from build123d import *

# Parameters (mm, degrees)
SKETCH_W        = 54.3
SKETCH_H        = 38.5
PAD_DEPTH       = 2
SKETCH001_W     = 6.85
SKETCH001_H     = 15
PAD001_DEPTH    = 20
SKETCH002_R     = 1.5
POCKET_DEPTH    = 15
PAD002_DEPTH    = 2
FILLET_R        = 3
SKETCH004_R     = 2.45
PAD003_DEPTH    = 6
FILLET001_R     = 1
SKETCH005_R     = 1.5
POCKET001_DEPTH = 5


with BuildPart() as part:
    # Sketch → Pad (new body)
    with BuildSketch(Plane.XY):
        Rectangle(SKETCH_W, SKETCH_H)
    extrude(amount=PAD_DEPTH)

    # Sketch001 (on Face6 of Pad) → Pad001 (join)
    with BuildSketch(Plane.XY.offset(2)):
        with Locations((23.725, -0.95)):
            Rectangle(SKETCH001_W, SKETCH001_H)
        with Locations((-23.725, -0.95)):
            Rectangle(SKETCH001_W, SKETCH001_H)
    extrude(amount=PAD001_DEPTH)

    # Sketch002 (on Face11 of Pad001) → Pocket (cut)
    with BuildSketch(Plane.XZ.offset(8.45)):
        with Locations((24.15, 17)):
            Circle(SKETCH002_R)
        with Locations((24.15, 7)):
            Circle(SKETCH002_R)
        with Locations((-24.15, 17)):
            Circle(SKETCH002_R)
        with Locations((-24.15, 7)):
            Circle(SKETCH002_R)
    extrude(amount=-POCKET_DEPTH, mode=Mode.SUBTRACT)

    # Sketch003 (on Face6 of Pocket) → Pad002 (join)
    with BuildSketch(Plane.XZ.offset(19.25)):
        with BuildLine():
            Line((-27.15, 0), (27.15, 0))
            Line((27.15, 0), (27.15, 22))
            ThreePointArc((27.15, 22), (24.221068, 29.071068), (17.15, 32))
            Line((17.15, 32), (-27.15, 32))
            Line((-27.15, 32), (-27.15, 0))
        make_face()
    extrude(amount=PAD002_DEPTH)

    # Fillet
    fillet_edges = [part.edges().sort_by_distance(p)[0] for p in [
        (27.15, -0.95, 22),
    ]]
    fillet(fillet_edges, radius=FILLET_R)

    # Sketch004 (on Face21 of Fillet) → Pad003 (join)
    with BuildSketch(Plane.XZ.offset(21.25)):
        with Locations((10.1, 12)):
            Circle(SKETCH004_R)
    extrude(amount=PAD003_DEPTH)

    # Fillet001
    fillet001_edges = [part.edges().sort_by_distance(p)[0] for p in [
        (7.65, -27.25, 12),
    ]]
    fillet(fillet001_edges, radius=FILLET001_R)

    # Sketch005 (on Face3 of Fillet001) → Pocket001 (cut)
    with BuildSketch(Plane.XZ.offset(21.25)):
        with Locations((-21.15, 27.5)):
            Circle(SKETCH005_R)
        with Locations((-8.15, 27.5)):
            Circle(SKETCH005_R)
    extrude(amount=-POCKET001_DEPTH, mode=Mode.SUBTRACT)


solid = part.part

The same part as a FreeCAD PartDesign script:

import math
import FreeCAD as App
import Part
import Sketcher


def edges_at(feature, points):
    """Names of the edges that pass closest to the given points."""
    edges = feature.Shape.Edges
    near = lambda p: min(range(len(edges)), key=lambda i: edges[i].distToShape(Part.Vertex(*p))[0])
    return sorted({f"Edge{near(p) + 1}" for p in points})


def add_polygon(sketch, points):
    """Adds a closed chain of lines whose ends are joined by coincident constraints."""
    first, n = sketch.GeometryCount, len(points)
    for a, b in zip(points, points[1:] + points[:1]):
        sketch.addGeometry(Part.LineSegment(App.Vector(*a, 0), App.Vector(*b, 0)), False)
    for i in range(n):
        sketch.addConstraint(Sketcher.Constraint("Coincident", first + i, 2, first + (i + 1) % n, 1))

doc = App.newDocument("Part")
body = doc.addObject("PartDesign::Body", "Body")

sketch1 = body.newObject("Sketcher::SketchObject", "Sketch")
sketch1.AttachmentSupport = (doc.getObject("XY_Plane"), [""])
sketch1.MapMode = "FlatFace"
add_polygon(sketch1, [(-27, 19), (-27, -19), (27, -19), (27, 19)])
sketch1.addConstraint([
    Sketcher.Constraint("Vertical", 0),
    Sketcher.Constraint("Horizontal", 1),
    Sketcher.Constraint("Vertical", 2),
    Sketcher.Constraint("Horizontal", 3),
    Sketcher.Constraint("Symmetric", 0, 2, 2, 2, -1, 1),
    Sketcher.Constraint("DistanceX", 1, 1, 1, 2, 54.3),
    Sketcher.Constraint("DistanceY", 0, 2, 0, 1, 38.5),
])
pad1 = body.newObject("PartDesign::Pad", "Pad")
pad1.Profile = sketch1
pad1.Length = 2

sketch2 = body.newObject("Sketcher::SketchObject", "Sketch001")
sketch2.AttachmentSupport = (doc.getObject("XY_Plane"), [""])
sketch2.MapMode = "FlatFace"
sketch2.AttachmentOffset = App.Placement(App.Vector(0, 0, 2), App.Rotation())
add_polygon(sketch2, [(20, 7), (20, -8), (27, -8), (27, 7)])
add_polygon(sketch2, [(-27, 7), (-27, -8), (-20, -8), (-20, 7)])
sketch2.addConstraint([
    Sketcher.Constraint("Vertical", 0),
    Sketcher.Constraint("Horizontal", 1),
    Sketcher.Constraint("Vertical", 2),
    Sketcher.Constraint("Horizontal", 3),
    Sketcher.Constraint("Vertical", 4),
    Sketcher.Constraint("Horizontal", 5),
    Sketcher.Constraint("Vertical", 6),
    Sketcher.Constraint("Horizontal", 7),
    Sketcher.Constraint("Symmetric", 1, 2, 4, 2, -2),
    Sketcher.Constraint("Symmetric", 3, 2, 6, 2, -2),
    Sketcher.Constraint("DistanceY", 0, 2, 0, 1, 15.0),
    Sketcher.Constraint("DistanceX", 1, 1, 1, 2, 6.85),
    Sketcher.Constraint("DistanceX", -1, 1, 0, 2, 20.3),
    Sketcher.Constraint("DistanceY", 0, 2, -1, 1, 8.45),
])
pad2 = body.newObject("PartDesign::Pad", "Pad001")
pad2.Profile = sketch2
pad2.Length = 20

sketch3 = body.newObject("Sketcher::SketchObject", "Sketch002")
sketch3.AttachmentSupport = (doc.getObject("XZ_Plane"), [""])
sketch3.MapMode = "FlatFace"
sketch3.AttachmentOffset = App.Placement(App.Vector(0, 0, 8.45), App.Rotation())
sketch3.addGeometry([
    Part.Circle(App.Vector(24.1, 17, 0), App.Vector(0, 0, 1), 1.5),
    Part.Circle(App.Vector(24.1, 7, 0), App.Vector(0, 0, 1), 1.5),
    Part.Circle(App.Vector(-24.1, 17, 0), App.Vector(0, 0, 1), 1.5),
    Part.Circle(App.Vector(-24.1, 7, 0), App.Vector(0, 0, 1), 1.5),
], False)
sketch3.addConstraint([
    Sketcher.Constraint("Equal", 0, 1),
    Sketcher.Constraint("Equal", 1, 2),
    Sketcher.Constraint("Equal", 2, 3),
    Sketcher.Constraint("Symmetric", 0, 3, 2, 3, -2),
    Sketcher.Constraint("Symmetric", 1, 3, 3, 3, -2),
    Sketcher.Constraint("Vertical", 0, 3, 1, 3),
    Sketcher.Constraint("Diameter", 0, 3.0),
    Sketcher.Constraint("DistanceY", -1, 1, 0, 3, 17.0),
    Sketcher.Constraint("DistanceY", -1, 1, 1, 3, 7.0),
    Sketcher.Constraint("DistanceX", 2, 3, 0, 3, 48.3),
])
pocket1 = body.newObject("PartDesign::Pocket", "Pocket")
pocket1.Profile = sketch3
pocket1.Length = 15

sketch4 = body.newObject("Sketcher::SketchObject", "Sketch003")
sketch4.AttachmentSupport = (doc.getObject("XZ_Plane"), [""])
sketch4.MapMode = "FlatFace"
sketch4.AttachmentOffset = App.Placement(App.Vector(0, 0, 19.25), App.Rotation())
sketch4.addGeometry([
    Part.LineSegment(App.Vector(-27, 0, 0), App.Vector(27, 0, 0)),
    Part.LineSegment(App.Vector(27, 0, 0), App.Vector(27, 22, 0)),
    Part.ArcOfCircle(Part.Circle(App.Vector(17, 22, 0), App.Vector(0, 0, 1), 10), math.radians(0), math.radians(90)),
    Part.LineSegment(App.Vector(17, 32, 0), App.Vector(-27, 32, 0)),
    Part.LineSegment(App.Vector(-27, 32, 0), App.Vector(-27, 0, 0)),
], False)
sketch4.addConstraint([
    Sketcher.Constraint("Coincident", 0, 2, 1, 1),
    Sketcher.Constraint("Tangent", 1, 2, 2, 1),
    Sketcher.Constraint("Tangent", 2, 2, 3, 1),
    Sketcher.Constraint("Coincident", 3, 2, 4, 1),
    Sketcher.Constraint("Coincident", 4, 2, 0, 1),
    Sketcher.Constraint("Horizontal", 0),
    Sketcher.Constraint("Vertical", 1),
    Sketcher.Constraint("Horizontal", 3),
    Sketcher.Constraint("Vertical", 4),
    Sketcher.Constraint("Symmetric", 0, 2, 4, 2, -1, 1),
    Sketcher.Constraint("Radius", 2, 9.999999),
    Sketcher.Constraint("DistanceY", 1, 1, 1, 2, 22.0),
    Sketcher.Constraint("DistanceX", 0, 1, 0, 2, 54.3),
])
pad3 = body.newObject("PartDesign::Pad", "Pad002")
pad3.Profile = sketch4
pad3.Length = 2
doc.recompute()

fillet = body.newObject("PartDesign::Fillet", "Fillet")
fillet.Base = (pad3, edges_at(pad3, [(27.15, -0.95, 22)]))
fillet.Radius = 3

sketch5 = body.newObject("Sketcher::SketchObject", "Sketch004")
sketch5.AttachmentSupport = (doc.getObject("XZ_Plane"), [""])
sketch5.MapMode = "FlatFace"
sketch5.AttachmentOffset = App.Placement(App.Vector(0, 0, 21.25), App.Rotation())
sketch5.addGeometry(Part.Circle(App.Vector(10.1, 12, 0), App.Vector(0, 0, 1), 2.5), False)
sketch5.addConstraint([
    Sketcher.Constraint("Diameter", 0, 4.9),
    Sketcher.Constraint("DistanceY", -1, 1, 0, 3, 12.0),
    Sketcher.Constraint("DistanceX", -1, 1, 0, 3, 10.1),
])
pad4 = body.newObject("PartDesign::Pad", "Pad003")
pad4.Profile = sketch5
pad4.Length = 6
doc.recompute()

fillet2 = body.newObject("PartDesign::Fillet", "Fillet001")
fillet2.Base = (pad4, edges_at(pad4, [(7.65, -27.25, 12)]))
fillet2.Radius = 1

sketch6 = body.newObject("Sketcher::SketchObject", "Sketch005")
sketch6.AttachmentSupport = (doc.getObject("XZ_Plane"), [""])
sketch6.MapMode = "FlatFace"
sketch6.AttachmentOffset = App.Placement(App.Vector(0, 0, 21.25), App.Rotation())
sketch6.addGeometry([
    Part.Circle(App.Vector(-21.1, 27.5, 0), App.Vector(0, 0, 1), 1.5),
    Part.Circle(App.Vector(-8.2, 27.5, 0), App.Vector(0, 0, 1), 1.5),
], False)
sketch6.addConstraint([
    Sketcher.Constraint("Equal", 0, 1),
    Sketcher.Constraint("Horizontal", 0, 3, 1, 3),
    Sketcher.Constraint("Diameter", 0, 3.0),
    Sketcher.Constraint("DistanceX", 0, 3, 1, 3, 13.0),
    Sketcher.Constraint("DistanceY", -1, 1, 0, 3, 27.5),
    Sketcher.Constraint("DistanceX", 0, 3, -1, 1, 21.15),
])
pocket2 = body.newObject("PartDesign::Pocket", "Pocket001")
pocket2.Profile = sketch6
pocket2.Length = 5

doc.recompute()
